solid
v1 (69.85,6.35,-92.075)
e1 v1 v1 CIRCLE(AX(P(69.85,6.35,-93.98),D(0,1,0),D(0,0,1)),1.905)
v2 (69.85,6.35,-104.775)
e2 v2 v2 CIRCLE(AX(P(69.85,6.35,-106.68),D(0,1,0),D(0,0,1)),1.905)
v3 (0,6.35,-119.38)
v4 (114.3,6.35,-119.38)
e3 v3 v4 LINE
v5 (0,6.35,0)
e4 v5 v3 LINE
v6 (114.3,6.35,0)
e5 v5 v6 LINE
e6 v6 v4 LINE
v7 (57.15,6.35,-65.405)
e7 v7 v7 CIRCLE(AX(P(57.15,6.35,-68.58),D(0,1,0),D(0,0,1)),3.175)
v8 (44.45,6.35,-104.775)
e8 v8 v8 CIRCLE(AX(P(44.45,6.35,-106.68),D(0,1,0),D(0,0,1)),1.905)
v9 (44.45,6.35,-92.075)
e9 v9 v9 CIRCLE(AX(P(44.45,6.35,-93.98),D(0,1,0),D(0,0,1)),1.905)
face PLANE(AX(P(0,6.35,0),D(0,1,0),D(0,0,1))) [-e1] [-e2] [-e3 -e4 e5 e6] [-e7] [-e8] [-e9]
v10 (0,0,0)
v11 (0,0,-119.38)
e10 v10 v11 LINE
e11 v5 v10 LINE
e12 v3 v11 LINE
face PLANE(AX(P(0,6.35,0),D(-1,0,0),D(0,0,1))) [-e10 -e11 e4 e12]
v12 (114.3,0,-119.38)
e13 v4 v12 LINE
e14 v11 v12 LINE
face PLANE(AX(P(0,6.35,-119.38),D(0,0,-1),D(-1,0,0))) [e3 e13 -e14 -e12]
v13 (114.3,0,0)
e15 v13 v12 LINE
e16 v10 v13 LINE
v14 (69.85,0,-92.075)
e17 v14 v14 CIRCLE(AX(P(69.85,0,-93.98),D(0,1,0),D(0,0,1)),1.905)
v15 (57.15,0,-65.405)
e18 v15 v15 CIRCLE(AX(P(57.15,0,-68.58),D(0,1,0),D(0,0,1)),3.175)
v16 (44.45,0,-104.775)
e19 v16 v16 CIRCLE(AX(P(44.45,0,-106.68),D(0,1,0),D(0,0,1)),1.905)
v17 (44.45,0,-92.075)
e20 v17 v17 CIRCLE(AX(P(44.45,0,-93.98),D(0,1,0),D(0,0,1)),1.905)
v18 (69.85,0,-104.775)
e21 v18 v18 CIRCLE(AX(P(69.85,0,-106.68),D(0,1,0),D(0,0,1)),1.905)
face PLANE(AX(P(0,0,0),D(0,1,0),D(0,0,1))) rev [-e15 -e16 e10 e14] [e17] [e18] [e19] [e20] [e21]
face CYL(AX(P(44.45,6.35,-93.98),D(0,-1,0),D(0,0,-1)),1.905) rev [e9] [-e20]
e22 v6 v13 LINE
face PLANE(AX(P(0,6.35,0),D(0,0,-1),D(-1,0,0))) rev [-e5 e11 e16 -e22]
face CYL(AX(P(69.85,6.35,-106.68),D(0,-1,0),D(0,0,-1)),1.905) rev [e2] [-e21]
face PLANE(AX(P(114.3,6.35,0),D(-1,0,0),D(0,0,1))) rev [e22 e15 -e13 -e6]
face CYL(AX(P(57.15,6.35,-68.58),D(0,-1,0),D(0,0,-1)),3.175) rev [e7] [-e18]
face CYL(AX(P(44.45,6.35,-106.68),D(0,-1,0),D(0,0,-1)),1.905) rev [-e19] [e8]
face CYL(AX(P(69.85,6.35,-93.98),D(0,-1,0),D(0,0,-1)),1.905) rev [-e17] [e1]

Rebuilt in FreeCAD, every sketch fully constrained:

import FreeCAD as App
import Part
import Sketcher
from FreeCAD import Vector
Q = App.Units.Quantity


def add_polygon(sketch, points):
    """Adds a closed chain of lines whose ends are joined by coincident constraints."""
    first, n = sketch.GeometryCount, len(points)
    for a, b in zip(points, points[1:] + points[:1]):
        sketch.addGeometry(Part.LineSegment(App.Vector(*a, 0), App.Vector(*b, 0)), False)
    for i in range(n):
        sketch.addConstraint(Sketcher.Constraint("Coincident", first + i, 2, first + (i + 1) % n, 1))

doc = App.newDocument("Part")
params = doc.addObject("Spreadsheet::Sheet", "Params")
for row, (alias, value) in enumerate([
    ("sketch1_diameter", "0.25 in"),
    ("sketch1_diameter2", "0.15 in"),
    ("sketch1_width", "4.5 in"),
    ("sketch1_height", "4.7 in"),
    ("pad1_length", "0.25 in"),
], start=1):
    params.set(f"A{row}", alias)
    params.set(f"B{row}", "=" + value)
    params.setAlias(f"B{row}", alias)

body = doc.addObject("PartDesign::Body", "Body")

# Sketch on XZ plane
sketch1 = doc.addObject("Sketcher::SketchObject", "Sketch")
body.addObject(sketch1)
sketch1.AttachmentSupport = (doc.XZ_Plane, [""])
sketch1.MapMode = "FlatFace"
add_polygon(sketch1, [(0, -119.38), (0, 0), (114.3, 0), (114.3, -119.38)])  # lines 0-3
sketch1.addGeometry(Part.Circle(Vector(57.15, -68.58, 0), Vector(0, 0, 1), 3.175), False)  # 4
sketch1.addGeometry(Part.Circle(Vector(44.45, -93.98, 0), Vector(0, 0, 1), 1.905), False)  # 5
sketch1.addGeometry(Part.Circle(Vector(44.45, -106.68, 0), Vector(0, 0, 1), 1.905), False)  # 6
sketch1.addGeometry(Part.Circle(Vector(69.85, -93.98, 0), Vector(0, 0, 1), 1.905), False)  # 7
sketch1.addGeometry(Part.Circle(Vector(69.85, -106.68, 0), Vector(0, 0, 1), 1.905), False)  # 8
sketch1.addConstraint([
    Sketcher.Constraint("Vertical", 0),
    Sketcher.Constraint("Horizontal", 1),
    Sketcher.Constraint("Vertical", 2),
    Sketcher.Constraint("Horizontal", 3),
    Sketcher.Constraint("Coincident", 0, 2, -1, 1),
    Sketcher.Constraint("Equal", 5, 6),
    Sketcher.Constraint("Equal", 6, 7),
    Sketcher.Constraint("Equal", 7, 8),
    Sketcher.Constraint("Horizontal", 5, 3, 7, 3),
    Sketcher.Constraint("Horizontal", 6, 3, 8, 3),
    Sketcher.Constraint("Vertical", 5, 3, 6, 3),
    Sketcher.Constraint("Vertical", 7, 3, 8, 3),
    Sketcher.Constraint("Diameter", 4, Q("0.25 in")),
    Sketcher.Constraint("Diameter", 5, Q("0.15 in")),
    Sketcher.Constraint("DistanceX", 1, 1, 1, 2, Q("4.5 in")),
    Sketcher.Constraint("DistanceY", 0, 1, 0, 2, Q("4.7 in")),
    Sketcher.Constraint("DistanceY", 5, 3, 4, 3, Q("1 in")),
    Sketcher.Constraint("DistanceX", 5, 3, 7, 3, Q("1 in")),
    Sketcher.Constraint("DistanceY", 2, 2, 7, 3, Q("1 in")),
    Sketcher.Constraint("DistanceY", 6, 3, -1, 1, Q("4.2 in")),
    Sketcher.Constraint("DistanceX", 5, 3, 4, 3, Q("0.5 in")),
    Sketcher.Constraint("DistanceX", -1, 1, 4, 3, Q("2.25 in")),
])
sketch1.setExpression("Constraints[16]", "Params.sketch1_diameter")
sketch1.setExpression("Constraints[17]", "Params.sketch1_diameter2")
sketch1.setExpression("Constraints[18]", "Params.sketch1_width")
sketch1.setExpression("Constraints[19]", "Params.sketch1_height")
pad1 = doc.addObject("PartDesign::Pad", "Pad")
body.addObject(pad1)
pad1.Profile = sketch1
pad1.setExpression("Length", "Params.pad1_length")
pad1.Reversed = True

doc.recompute()
